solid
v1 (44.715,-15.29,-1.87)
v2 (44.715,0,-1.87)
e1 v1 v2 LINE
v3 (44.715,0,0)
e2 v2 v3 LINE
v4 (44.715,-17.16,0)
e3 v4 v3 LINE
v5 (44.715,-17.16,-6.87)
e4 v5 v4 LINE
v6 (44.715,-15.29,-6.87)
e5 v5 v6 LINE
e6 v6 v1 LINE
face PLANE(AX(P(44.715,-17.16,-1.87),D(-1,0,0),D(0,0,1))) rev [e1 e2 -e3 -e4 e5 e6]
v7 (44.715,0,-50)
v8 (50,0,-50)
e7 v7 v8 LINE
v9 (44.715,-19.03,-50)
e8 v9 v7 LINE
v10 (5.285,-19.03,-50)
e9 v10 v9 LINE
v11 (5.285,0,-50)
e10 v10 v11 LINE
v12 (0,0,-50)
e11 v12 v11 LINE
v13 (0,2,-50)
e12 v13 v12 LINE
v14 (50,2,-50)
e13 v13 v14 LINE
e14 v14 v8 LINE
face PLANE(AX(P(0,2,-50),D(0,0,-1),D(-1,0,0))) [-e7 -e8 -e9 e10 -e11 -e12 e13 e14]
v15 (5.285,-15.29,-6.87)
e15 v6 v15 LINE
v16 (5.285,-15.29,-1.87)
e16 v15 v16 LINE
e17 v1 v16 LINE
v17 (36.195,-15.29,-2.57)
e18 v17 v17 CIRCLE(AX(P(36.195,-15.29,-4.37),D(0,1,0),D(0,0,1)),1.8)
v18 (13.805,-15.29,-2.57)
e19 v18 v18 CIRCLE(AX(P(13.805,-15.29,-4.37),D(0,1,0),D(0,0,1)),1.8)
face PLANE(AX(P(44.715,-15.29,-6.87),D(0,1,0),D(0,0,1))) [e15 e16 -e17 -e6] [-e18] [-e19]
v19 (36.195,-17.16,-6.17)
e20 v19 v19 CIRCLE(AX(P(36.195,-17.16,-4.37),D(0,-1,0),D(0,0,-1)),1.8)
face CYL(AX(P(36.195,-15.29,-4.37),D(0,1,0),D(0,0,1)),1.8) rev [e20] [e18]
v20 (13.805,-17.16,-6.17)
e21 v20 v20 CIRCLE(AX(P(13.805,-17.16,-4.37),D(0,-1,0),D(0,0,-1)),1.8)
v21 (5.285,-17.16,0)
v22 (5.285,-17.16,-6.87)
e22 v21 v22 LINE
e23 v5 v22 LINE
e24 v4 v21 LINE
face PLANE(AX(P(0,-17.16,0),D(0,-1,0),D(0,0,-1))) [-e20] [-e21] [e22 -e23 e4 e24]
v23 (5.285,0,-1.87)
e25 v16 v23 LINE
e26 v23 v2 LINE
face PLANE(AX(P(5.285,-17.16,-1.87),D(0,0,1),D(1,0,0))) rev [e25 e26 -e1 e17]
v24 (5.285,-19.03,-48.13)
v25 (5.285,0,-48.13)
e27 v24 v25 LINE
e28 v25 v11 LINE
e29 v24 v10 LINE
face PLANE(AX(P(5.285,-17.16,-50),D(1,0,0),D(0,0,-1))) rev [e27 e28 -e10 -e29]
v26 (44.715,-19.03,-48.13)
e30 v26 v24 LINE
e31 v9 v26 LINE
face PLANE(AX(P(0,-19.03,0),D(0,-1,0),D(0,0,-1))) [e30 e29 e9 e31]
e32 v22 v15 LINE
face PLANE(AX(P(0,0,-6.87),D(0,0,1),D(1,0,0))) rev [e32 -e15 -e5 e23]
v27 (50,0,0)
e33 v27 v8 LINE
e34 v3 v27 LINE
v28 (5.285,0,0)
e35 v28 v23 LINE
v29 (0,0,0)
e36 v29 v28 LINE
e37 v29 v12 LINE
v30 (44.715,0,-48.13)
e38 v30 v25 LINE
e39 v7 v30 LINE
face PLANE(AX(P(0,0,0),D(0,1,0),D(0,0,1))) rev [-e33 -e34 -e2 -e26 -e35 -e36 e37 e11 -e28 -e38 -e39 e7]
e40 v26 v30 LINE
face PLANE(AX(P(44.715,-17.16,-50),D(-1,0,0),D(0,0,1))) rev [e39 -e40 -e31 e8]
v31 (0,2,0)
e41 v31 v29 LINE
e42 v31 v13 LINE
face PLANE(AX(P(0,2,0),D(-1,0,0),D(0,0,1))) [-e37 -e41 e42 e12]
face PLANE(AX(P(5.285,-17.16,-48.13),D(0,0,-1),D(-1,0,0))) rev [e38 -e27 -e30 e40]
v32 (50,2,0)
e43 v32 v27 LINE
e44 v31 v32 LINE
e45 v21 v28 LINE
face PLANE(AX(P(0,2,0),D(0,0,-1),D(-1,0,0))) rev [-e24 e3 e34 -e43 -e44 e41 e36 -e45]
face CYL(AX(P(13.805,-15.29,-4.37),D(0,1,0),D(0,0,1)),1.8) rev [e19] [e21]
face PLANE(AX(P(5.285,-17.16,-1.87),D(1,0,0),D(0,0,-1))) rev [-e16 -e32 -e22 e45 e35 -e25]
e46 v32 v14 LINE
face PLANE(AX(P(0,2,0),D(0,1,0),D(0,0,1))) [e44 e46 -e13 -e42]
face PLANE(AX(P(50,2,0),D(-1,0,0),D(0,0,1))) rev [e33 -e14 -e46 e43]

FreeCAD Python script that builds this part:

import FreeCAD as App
import Part
import Sketcher
from FreeCAD import Vector


def add_polygon(sketch, points):
    """Adds a closed chain of lines whose ends are joined by coincident constraints."""
    first, n = sketch.GeometryCount, len(points)
    for a, b in zip(points, points[1:] + points[:1]):
        sketch.addGeometry(Part.LineSegment(App.Vector(*a, 0), App.Vector(*b, 0)), False)
    for i in range(n):
        sketch.addConstraint(Sketcher.Constraint("Coincident", first + i, 2, first + (i + 1) % n, 1))

doc = App.newDocument("Part")
body = doc.addObject("PartDesign::Body", "Body")

# Sketch on XZ plane
sketch1 = doc.addObject("Sketcher::SketchObject", "Sketch")
body.addObject(sketch1)
sketch1.AttachmentSupport = (doc.XZ_Plane, [""])
sketch1.MapMode = "FlatFace"
add_polygon(sketch1, [(0, -50), (0, 0), (50, 0), (50, -50)])  # lines 0-3
sketch1.addConstraint([
    Sketcher.Constraint("Vertical", 0),
    Sketcher.Constraint("Horizontal", 1),
    Sketcher.Constraint("Vertical", 2),
    Sketcher.Constraint("Horizontal", 3),
    Sketcher.Constraint("Coincident", 0, 2, -1, 1),
    Sketcher.Constraint("Equal", 3, 0),
    Sketcher.Constraint("DistanceX", 1, 1, 1, 2, 50.0),
])
pad1 = doc.addObject("PartDesign::Pad", "Pad")
body.addObject(pad1)
pad1.Profile = sketch1
pad1.Length = 2
pad1.Reversed = True

# Sketch on XZ plane
sketch2 = doc.addObject("Sketcher::SketchObject", "Sketch001")
body.addObject(sketch2)
sketch2.AttachmentSupport = (doc.XZ_Plane, [""])
sketch2.MapMode = "FlatFace"
add_polygon(sketch2, [(5.3, -48.1), (5.3, -50), (44.7, -50), (44.7, -48.1)])  # lines 0-3
add_polygon(sketch2, [(5.3, 0), (5.3, -1.9), (44.7, -1.9), (44.7, 0)])  # lines 4-7
sketch2.addConstraint([
    Sketcher.Constraint("Vertical", 0),
    Sketcher.Constraint("Horizontal", 1),
    Sketcher.Constraint("Vertical", 2),
    Sketcher.Constraint("Horizontal", 3),
    Sketcher.Constraint("Vertical", 4),
    Sketcher.Constraint("Horizontal", 5),
    Sketcher.Constraint("Vertical", 6),
    Sketcher.Constraint("Horizontal", 7),
    Sketcher.Constraint("PointOnObject", 6, 2, -1),
    Sketcher.Constraint("Vertical", 3, 2, 4, 2),
    Sketcher.Constraint("Vertical", 2, 2, 5, 2),
    Sketcher.Constraint("Equal", 2, 4),
    Sketcher.Constraint("DistanceY", 0, 2, -1, 1, 50.0),
    Sketcher.Constraint("DistanceX", 1, 1, 1, 2, 39.43),
    Sketcher.Constraint("DistanceY", 0, 2, 0, 1, 1.87),
    Sketcher.Constraint("DistanceX", -1, 1, 0, 2, 5.285),
])
pad2 = doc.addObject("PartDesign::Pad", "Pad001")
body.addObject(pad2)
pad2.Profile = sketch2
pad2.Length = 17.16

# Sketch on XY plane
sketch3 = doc.addObject("Sketcher::SketchObject", "Sketch002")
body.addObject(sketch3)
sketch3.AttachmentSupport = (doc.XY_Plane, [""])
sketch3.MapMode = "FlatFace"
sketch3.AttachmentOffset = App.Placement(Vector(0, 0, -1.87), App.Rotation())
add_polygon(sketch3, [(44.7, -15.3), (44.7, -17.2), (5.3, -17.2), (5.3, -15.3)])  # lines 0-3
sketch3.addConstraint([
    Sketcher.Constraint("Vertical", 0),
    Sketcher.Constraint("Horizontal", 1),
    Sketcher.Constraint("Vertical", 2),
    Sketcher.Constraint("Horizontal", 3),
    Sketcher.Constraint("DistanceX", 1, 2, 1, 1, 39.43),
    Sketcher.Constraint("DistanceY", 0, 2, 0, 1, 1.87),
    Sketcher.Constraint("DistanceY", 0, 2, -1, 1, 17.16),
    Sketcher.Constraint("DistanceX", -1, 1, 0, 2, 44.715),
])
pad3 = doc.addObject("PartDesign::Pad", "Pad002")
body.addObject(pad3)
pad3.Profile = sketch3
pad3.Length = 5
pad3.Reversed = True

# Sketch on XZ plane
sketch4 = doc.addObject("Sketcher::SketchObject", "Sketch003")
body.addObject(sketch4)
sketch4.AttachmentSupport = (doc.XZ_Plane, [""])
sketch4.MapMode = "FlatFace"
sketch4.AttachmentOffset = App.Placement(Vector(0, 0, 15.29), App.Rotation())
sketch4.addGeometry([
    Part.Circle(Vector(36.2, -4.4, 0), Vector(0, 0, 1), 1.8),
    Part.Circle(Vector(13.8, -4.4, 0), Vector(0, 0, 1), 1.8),
], False)
sketch4.addConstraint([
    Sketcher.Constraint("Equal", 0, 1),
    Sketcher.Constraint("Horizontal", 0, 3, 1, 3),
    Sketcher.Constraint("Diameter", 0, 3.6),
    Sketcher.Constraint("DistanceY", 0, 3, -1, 1, 4.37),
    Sketcher.Constraint("DistanceX", 1, 3, 0, 3, 22.39),
    Sketcher.Constraint("DistanceX", -1, 1, 0, 3, 36.195),
])
doc.recompute()
hole = doc.addObject("PartDesign::Hole", "Hole")
body.addObject(hole)
hole.Profile = sketch4
hole.ThreadType = "None"
hole.Diameter = 3.6
hole.DepthType = "Dimension"
hole.Depth = 1.99
hole.DrillPoint = "Angled"
hole.DrillPointAngle = 118
hole.Reversed = True

# Sketch on XZ plane
sketch5 = doc.addObject("Sketcher::SketchObject", "Sketch004")
body.addObject(sketch5)
sketch5.AttachmentSupport = (doc.XZ_Plane, [""])
sketch5.MapMode = "FlatFace"
sketch5.AttachmentOffset = App.Placement(Vector(0, 0, 17.16), App.Rotation())
add_polygon(sketch5, [(5.3, -48.1), (5.3, -50), (44.7, -50), (44.7, -48.1)])  # lines 0-3
sketch5.addConstraint([
    Sketcher.Constraint("Vertical", 0),
    Sketcher.Constraint("Horizontal", 1),
    Sketcher.Constraint("Vertical", 2),
    Sketcher.Constraint("Horizontal", 3),
    Sketcher.Constraint("DistanceY", 0, 2, -1, 1, 50.0),
    Sketcher.Constraint("DistanceX", 1, 1, 1, 2, 39.43),
    Sketcher.Constraint("DistanceY", 0, 2, 0, 1, 1.87),
    Sketcher.Constraint("DistanceX", -1, 1, 0, 2, 5.285),
])
pad4 = doc.addObject("PartDesign::Pad", "Pad003")
body.addObject(pad4)
pad4.Profile = sketch5
pad4.Length = 1.87

doc.recompute()
